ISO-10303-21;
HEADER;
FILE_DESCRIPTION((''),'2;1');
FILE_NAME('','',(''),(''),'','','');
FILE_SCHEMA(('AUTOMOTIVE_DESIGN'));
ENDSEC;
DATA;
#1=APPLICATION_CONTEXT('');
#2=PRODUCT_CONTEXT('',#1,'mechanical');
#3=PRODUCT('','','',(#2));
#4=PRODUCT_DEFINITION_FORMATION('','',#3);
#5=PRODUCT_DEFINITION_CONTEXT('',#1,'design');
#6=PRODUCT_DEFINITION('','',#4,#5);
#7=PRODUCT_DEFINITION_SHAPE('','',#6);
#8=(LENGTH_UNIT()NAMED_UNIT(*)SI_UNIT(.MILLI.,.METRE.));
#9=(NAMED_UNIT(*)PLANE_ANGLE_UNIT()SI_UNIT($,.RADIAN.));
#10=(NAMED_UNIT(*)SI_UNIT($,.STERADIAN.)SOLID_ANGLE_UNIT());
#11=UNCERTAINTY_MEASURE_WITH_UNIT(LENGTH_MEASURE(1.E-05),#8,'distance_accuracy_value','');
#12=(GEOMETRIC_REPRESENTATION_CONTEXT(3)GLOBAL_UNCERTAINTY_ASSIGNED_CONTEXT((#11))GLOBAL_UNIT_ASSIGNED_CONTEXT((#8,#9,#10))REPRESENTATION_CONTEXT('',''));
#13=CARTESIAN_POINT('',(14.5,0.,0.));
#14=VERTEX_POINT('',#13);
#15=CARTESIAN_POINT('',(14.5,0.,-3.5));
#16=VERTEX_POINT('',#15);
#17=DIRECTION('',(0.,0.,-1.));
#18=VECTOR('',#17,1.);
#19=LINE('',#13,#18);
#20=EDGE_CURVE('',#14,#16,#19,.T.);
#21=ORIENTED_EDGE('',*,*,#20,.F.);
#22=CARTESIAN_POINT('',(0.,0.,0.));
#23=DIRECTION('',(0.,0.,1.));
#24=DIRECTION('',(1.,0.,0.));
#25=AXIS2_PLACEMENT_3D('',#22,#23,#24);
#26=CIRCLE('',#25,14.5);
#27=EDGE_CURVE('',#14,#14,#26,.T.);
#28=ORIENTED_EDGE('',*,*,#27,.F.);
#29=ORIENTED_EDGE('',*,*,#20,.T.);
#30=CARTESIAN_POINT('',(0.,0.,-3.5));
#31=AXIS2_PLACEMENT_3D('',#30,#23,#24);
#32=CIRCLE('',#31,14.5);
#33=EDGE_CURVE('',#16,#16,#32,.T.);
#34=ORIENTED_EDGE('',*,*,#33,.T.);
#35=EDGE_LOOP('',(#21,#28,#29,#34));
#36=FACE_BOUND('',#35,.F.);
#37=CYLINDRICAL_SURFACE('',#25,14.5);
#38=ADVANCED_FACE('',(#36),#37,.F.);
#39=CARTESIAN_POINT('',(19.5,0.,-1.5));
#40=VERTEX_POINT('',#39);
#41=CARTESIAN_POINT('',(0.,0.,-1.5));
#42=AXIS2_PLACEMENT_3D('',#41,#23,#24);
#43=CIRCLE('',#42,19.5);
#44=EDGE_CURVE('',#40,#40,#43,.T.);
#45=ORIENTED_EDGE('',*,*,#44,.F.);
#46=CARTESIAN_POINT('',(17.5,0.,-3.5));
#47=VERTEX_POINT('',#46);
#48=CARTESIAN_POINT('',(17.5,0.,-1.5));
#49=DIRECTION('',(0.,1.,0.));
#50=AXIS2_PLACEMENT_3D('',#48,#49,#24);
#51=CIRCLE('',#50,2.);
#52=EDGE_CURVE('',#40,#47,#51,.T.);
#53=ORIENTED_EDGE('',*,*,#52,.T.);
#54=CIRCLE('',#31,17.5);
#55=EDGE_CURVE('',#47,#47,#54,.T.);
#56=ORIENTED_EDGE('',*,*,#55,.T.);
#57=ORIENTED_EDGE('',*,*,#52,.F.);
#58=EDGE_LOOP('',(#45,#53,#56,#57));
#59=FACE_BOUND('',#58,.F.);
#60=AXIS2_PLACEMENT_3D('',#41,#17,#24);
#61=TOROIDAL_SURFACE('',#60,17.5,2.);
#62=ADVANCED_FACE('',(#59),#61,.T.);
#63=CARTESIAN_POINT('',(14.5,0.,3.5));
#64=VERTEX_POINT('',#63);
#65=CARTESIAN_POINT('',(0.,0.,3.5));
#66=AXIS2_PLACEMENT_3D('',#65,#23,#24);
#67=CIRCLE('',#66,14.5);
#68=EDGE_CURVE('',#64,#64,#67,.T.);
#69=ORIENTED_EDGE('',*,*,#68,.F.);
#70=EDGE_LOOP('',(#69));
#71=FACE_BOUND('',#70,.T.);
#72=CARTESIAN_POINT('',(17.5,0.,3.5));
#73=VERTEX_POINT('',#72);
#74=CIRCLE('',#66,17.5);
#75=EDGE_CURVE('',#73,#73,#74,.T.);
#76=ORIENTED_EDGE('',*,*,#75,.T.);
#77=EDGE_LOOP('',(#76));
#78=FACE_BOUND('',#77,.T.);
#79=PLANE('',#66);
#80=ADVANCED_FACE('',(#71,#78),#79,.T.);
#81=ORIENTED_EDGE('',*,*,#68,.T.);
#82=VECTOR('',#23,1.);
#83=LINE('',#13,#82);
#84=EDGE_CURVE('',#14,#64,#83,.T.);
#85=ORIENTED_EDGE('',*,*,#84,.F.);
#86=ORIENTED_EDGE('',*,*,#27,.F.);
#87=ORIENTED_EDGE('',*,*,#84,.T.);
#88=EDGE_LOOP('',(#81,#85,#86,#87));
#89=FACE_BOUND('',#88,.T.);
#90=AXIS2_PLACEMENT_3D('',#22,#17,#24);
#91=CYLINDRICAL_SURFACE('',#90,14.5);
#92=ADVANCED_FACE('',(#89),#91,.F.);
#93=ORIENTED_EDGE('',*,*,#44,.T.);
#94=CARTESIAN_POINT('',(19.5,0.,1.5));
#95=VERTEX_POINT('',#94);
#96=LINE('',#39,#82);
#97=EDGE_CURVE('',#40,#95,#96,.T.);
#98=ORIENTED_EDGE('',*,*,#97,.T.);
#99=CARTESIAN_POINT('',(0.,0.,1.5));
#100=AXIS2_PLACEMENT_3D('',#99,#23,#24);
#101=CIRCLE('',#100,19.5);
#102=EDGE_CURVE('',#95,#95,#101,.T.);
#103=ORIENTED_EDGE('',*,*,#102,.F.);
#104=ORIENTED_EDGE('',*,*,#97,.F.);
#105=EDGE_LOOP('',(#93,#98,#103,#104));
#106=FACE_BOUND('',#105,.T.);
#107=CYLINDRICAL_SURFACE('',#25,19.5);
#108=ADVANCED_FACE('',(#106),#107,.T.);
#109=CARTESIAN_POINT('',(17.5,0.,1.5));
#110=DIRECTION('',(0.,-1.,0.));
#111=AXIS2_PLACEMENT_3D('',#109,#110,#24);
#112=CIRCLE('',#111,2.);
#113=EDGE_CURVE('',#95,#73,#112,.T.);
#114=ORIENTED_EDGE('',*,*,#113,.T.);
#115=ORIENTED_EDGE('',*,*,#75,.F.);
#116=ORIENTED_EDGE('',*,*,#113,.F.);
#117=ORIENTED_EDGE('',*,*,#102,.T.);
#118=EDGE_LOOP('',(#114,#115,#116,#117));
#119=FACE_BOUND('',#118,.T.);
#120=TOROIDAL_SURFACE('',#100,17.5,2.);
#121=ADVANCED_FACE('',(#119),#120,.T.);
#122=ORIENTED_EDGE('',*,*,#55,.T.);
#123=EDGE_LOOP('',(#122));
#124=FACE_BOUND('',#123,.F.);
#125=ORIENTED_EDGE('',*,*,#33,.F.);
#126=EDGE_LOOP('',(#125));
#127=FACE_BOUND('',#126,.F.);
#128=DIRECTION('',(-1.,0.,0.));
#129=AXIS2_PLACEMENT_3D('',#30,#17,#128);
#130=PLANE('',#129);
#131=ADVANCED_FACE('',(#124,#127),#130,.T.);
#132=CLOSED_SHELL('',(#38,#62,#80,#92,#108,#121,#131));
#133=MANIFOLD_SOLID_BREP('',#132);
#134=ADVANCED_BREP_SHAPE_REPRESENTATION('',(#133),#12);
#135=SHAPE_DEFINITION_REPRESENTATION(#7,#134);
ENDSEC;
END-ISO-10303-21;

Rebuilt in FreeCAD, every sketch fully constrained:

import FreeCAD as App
import Part
import Sketcher
from FreeCAD import Vector
Q = App.Units.Quantity


def edges_at(feature, points):
    """Names of the edges that pass closest to the given points."""
    edges = feature.Shape.Edges
    near = lambda p: min(range(len(edges)), key=lambda i: edges[i].distToShape(Part.Vertex(*p))[0])
    return sorted({f"Edge{near(p) + 1}" for p in points})

doc = App.newDocument("Part")
params = doc.addObject("Spreadsheet::Sheet", "Params")
for row, (alias, value) in enumerate([
    ("sketch1_diameter", "39 mm"),
    ("sketch1_diameter2", "29 mm"),
    ("pad1_length", "3.5 mm"),
    ("fillet_radius", "2 mm"),
], start=1):
    params.set(f"A{row}", alias)
    params.set(f"B{row}", "=" + value)
    params.setAlias(f"B{row}", alias)

body = doc.addObject("PartDesign::Body", "Body")

# Sketch on XY plane
sketch1 = doc.addObject("Sketcher::SketchObject", "Sketch")
body.addObject(sketch1)
sketch1.AttachmentSupport = (doc.XY_Plane, [""])
sketch1.MapMode = "FlatFace"
sketch1.addGeometry(Part.Circle(Vector(0, 0, 0), Vector(0, 0, 1), 20), False)
sketch1.addGeometry(Part.Circle(Vector(0, 0, 0), Vector(0, 0, 1), 14), False)
sketch1.addConstraint(Sketcher.Constraint("Coincident", 0, 3, -1, 1))
sketch1.addConstraint(Sketcher.Constraint("Coincident", 1, 3, -1, 1))
sketch1.addConstraint(Sketcher.Constraint("Diameter", 0, Q("39 mm")))
sketch1.addConstraint(Sketcher.Constraint("Diameter", 1, Q("29 mm")))
sketch1.setExpression("Constraints[2]", "Params.sketch1_diameter")
sketch1.setExpression("Constraints[3]", "Params.sketch1_diameter2")
pad1 = doc.addObject("PartDesign::Pad", "Pad")
body.addObject(pad1)
pad1.Profile = sketch1
pad1.setExpression("Length", "Params.pad1_length")
doc.recompute()

fillet = doc.addObject("PartDesign::Fillet", "Fillet")
body.addObject(fillet)
fillet.Base = (pad1, edges_at(pad1, [(-19.5, 0, 3.5)]))
fillet.setExpression("Radius", "Params.fillet_radius")
body2 = doc.addObject("PartDesign::Body", "Body001")
doc.recompute()

body2.BaseFeature = body
doc.recompute()

mirroring = doc.addObject("Part::Mirroring", "Mirroring")
mirroring.Source = body
mirroring.Base = Vector(0, 0, 0)
mirroring.Normal = Vector(0, 0, 1)
body3 = doc.addObject("PartDesign::Body", "Body002")
body3.BaseFeature = mirroring
boolean = doc.addObject("PartDesign::Boolean", "Boolean")
body2.addObject(boolean)
boolean.Type = "Fuse"
boolean.addObjects([body3])
doc.recompute()
mirroring.Visibility = False

doc.recompute()
